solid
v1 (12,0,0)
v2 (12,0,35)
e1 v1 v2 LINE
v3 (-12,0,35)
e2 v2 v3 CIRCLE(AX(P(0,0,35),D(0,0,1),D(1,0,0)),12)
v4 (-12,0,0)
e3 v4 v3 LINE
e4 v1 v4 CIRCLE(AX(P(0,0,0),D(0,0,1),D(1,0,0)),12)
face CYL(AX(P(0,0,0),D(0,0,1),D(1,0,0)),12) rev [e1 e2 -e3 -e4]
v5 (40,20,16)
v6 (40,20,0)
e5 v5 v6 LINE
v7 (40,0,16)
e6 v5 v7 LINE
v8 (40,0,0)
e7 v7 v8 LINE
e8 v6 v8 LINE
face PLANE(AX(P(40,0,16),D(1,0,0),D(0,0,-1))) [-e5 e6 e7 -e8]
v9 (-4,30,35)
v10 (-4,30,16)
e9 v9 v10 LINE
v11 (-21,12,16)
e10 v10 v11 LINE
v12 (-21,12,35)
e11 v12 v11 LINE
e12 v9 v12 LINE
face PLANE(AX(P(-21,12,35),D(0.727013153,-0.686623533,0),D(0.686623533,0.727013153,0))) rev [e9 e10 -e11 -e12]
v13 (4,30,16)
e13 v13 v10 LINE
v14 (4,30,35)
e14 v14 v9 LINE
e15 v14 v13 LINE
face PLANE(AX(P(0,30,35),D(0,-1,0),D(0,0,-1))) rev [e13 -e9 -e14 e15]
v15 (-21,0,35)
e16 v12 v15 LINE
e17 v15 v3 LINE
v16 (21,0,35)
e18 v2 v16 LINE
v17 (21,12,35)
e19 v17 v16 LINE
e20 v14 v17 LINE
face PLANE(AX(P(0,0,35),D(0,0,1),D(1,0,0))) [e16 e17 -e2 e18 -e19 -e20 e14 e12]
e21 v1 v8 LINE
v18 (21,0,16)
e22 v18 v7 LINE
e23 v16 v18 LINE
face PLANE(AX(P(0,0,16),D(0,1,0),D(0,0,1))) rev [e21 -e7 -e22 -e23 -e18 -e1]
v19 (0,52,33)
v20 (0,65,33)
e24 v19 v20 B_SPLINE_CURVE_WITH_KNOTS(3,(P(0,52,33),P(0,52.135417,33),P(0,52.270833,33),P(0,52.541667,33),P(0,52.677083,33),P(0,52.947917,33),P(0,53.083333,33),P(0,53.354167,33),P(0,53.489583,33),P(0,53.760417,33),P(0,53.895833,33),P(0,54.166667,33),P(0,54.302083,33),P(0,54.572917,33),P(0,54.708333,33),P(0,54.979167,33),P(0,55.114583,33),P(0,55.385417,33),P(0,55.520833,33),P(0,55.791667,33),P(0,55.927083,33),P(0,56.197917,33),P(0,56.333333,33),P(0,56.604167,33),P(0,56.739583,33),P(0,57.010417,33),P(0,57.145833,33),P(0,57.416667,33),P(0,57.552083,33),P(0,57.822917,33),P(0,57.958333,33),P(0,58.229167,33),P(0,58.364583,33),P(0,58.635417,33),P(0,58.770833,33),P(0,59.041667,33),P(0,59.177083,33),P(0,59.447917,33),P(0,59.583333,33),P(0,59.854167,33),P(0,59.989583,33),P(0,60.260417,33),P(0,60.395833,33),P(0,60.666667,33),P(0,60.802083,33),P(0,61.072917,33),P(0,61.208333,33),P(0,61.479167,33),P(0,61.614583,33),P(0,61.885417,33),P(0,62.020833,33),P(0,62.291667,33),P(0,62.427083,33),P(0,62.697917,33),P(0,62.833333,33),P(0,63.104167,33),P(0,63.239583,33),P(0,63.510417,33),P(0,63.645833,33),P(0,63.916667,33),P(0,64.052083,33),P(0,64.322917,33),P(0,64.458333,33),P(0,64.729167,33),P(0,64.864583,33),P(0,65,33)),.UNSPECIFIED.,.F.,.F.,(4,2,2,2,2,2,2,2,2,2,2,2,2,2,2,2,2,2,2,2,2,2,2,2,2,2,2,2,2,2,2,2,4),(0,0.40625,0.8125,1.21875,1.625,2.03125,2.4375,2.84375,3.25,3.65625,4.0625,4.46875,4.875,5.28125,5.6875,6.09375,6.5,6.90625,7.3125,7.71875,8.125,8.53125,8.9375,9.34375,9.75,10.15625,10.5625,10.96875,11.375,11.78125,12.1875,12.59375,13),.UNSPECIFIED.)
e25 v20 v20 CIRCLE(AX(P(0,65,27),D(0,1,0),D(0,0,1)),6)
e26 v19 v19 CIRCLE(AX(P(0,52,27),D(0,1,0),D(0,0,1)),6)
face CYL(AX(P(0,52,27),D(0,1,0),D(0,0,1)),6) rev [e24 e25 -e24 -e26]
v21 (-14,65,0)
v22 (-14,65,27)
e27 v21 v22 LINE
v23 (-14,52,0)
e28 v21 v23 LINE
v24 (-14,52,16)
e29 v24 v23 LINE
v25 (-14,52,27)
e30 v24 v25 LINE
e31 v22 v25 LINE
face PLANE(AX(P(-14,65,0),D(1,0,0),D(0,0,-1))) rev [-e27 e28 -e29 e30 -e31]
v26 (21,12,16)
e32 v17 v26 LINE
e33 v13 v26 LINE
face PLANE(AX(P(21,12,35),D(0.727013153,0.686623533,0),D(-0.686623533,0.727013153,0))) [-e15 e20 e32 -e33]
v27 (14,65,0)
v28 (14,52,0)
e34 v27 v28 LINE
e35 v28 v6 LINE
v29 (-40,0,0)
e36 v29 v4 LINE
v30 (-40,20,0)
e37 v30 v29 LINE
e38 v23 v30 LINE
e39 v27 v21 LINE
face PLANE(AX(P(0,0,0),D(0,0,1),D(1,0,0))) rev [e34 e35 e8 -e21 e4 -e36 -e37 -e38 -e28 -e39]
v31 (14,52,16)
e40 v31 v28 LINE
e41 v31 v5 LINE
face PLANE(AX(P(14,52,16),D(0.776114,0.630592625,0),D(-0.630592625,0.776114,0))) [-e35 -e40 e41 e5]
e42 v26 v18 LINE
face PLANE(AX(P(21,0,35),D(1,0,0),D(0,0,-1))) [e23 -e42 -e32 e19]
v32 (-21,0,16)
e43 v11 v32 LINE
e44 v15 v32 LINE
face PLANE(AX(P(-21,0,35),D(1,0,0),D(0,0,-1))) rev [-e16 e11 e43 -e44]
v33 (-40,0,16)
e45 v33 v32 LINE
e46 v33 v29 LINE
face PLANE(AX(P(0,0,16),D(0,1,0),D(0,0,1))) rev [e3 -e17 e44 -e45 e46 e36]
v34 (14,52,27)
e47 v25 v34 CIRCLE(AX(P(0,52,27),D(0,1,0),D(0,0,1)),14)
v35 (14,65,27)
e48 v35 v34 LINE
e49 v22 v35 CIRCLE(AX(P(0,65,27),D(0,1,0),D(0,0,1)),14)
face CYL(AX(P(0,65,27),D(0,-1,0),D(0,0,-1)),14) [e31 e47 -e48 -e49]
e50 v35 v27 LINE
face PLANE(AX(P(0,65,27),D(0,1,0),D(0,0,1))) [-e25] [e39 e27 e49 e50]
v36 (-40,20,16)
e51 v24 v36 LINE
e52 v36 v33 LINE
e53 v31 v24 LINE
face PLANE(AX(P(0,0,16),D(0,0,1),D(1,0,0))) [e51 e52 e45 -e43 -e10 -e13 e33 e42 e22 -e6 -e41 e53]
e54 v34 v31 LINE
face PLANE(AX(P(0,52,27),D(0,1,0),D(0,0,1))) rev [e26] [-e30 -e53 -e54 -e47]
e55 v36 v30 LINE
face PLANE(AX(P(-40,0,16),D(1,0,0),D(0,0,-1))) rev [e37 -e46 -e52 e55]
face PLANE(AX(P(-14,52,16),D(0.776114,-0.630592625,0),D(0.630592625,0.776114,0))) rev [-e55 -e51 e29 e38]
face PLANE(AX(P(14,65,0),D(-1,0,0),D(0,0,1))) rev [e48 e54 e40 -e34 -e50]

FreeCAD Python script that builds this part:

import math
import FreeCAD as App
import Part
import Sketcher
from FreeCAD import Vector

doc = App.newDocument("Part")
body = doc.addObject("PartDesign::Body", "Body")

# Sketch on XY plane
sketch1 = body.newObject("Sketcher::SketchObject", "Sketch")
sketch1.AttachmentSupport = (doc.getObject("XY_Plane"), [""])
sketch1.MapMode = "FlatFace"
sketch1.addGeometry(Part.LineSegment(Vector(-40, 0, 0), Vector(0, 0, 0)), False)
sketch1.addGeometry(Part.LineSegment(Vector(0, 0, 0), Vector(0, 52, 0)), False)
sketch1.addGeometry(Part.LineSegment(Vector(0, 52, 0), Vector(-14, 52, 0)), False)
sketch1.addGeometry(Part.LineSegment(Vector(-14, 52, 0), Vector(-40, 20, 0)), False)
sketch1.addGeometry(Part.LineSegment(Vector(-40, 20, 0), Vector(-40, 0, 0)), False)
sketch1.addConstraint(Sketcher.Constraint("Coincident", 0, 2, 1, 1))
sketch1.addConstraint(Sketcher.Constraint("Coincident", 1, 2, 2, 1))
sketch1.addConstraint(Sketcher.Constraint("Coincident", 2, 2, 3, 1))
sketch1.addConstraint(Sketcher.Constraint("Coincident", 3, 2, 4, 1))
sketch1.addConstraint(Sketcher.Constraint("Coincident", 4, 2, 0, 1))
sketch1.addConstraint(Sketcher.Constraint("Horizontal", 0))
sketch1.addConstraint(Sketcher.Constraint("Vertical", 1))
sketch1.addConstraint(Sketcher.Constraint("Horizontal", 2))
sketch1.addConstraint(Sketcher.Constraint("Vertical", 4))
sketch1.addConstraint(Sketcher.Constraint("Coincident", 0, 2, -1, 1))
sketch1.addConstraint(Sketcher.Constraint("DistanceX", 0, 1, 0, 2, 40.0))
sketch1.addConstraint(Sketcher.Constraint("DistanceX", 2, 2, 2, 1, 14.0))
sketch1.addConstraint(Sketcher.Constraint("DistanceY", 1, 1, 1, 2, 52.0))
sketch1.addConstraint(Sketcher.Constraint("DistanceY", 4, 2, 4, 1, 20.0))
pad1 = body.newObject("PartDesign::Pad", "Pad")
pad1.Profile = sketch1
pad1.Length = 16
doc.recompute()

mirrored = body.newObject("PartDesign::Mirrored", "Mirrored")
mirrored.Originals = [pad1]
mirrored.MirrorPlane = (doc.getObject("YZ_Plane"), [""])
body.Tip = mirrored

# Sketch on XZ plane
sketch2 = body.newObject("Sketcher::SketchObject", "Sketch001")
sketch2.AttachmentSupport = (doc.getObject("XZ_Plane"), [""])
sketch2.MapMode = "FlatFace"
sketch2.AttachmentOffset = App.Placement(Vector(0, 0, -52), App.Rotation())
sketch2.addGeometry(Part.LineSegment(Vector(-14, 0, 0), Vector(-14, 27, 0)), False)
sketch2.addGeometry(Part.ArcOfCircle(Part.Circle(Vector(0, 27, 0), Vector(0, 0, 1), 14), math.radians(0), math.radians(180)), False)
sketch2.addGeometry(Part.LineSegment(Vector(14, 27, 0), Vector(14, 0, 0)), False)
sketch2.addGeometry(Part.LineSegment(Vector(14, 0, 0), Vector(-14, 0, 0)), False)
sketch2.addConstraint(Sketcher.Constraint("Tangent", 0, 2, 1, 2))
sketch2.addConstraint(Sketcher.Constraint("Tangent", 1, 1, 2, 1))
sketch2.addConstraint(Sketcher.Constraint("Coincident", 2, 2, 3, 1))
sketch2.addConstraint(Sketcher.Constraint("Coincident", 3, 2, 0, 1))
sketch2.addConstraint(Sketcher.Constraint("Vertical", 0))
sketch2.addConstraint(Sketcher.Constraint("Vertical", 2))
sketch2.addConstraint(Sketcher.Constraint("Horizontal", 3))
sketch2.addConstraint(Sketcher.Constraint("Symmetric", 2, 2, 3, 2, -1, 1))
sketch2.addConstraint(Sketcher.Constraint("Radius", 1, 14.0))
sketch2.addConstraint(Sketcher.Constraint("DistanceY", 0, 1, 0, 2, 27.0))
pad2 = body.newObject("PartDesign::Pad", "Pad001")
pad2.Profile = sketch2
pad2.Length = 13
pad2.Reversed = True

# Sketch on XZ plane
sketch3 = body.newObject("Sketcher::SketchObject", "Sketch002")
sketch3.AttachmentSupport = (doc.getObject("XZ_Plane"), [""])
sketch3.MapMode = "FlatFace"
sketch3.AttachmentOffset = App.Placement(Vector(0, 0, -65), App.Rotation())
sketch3.addGeometry(Part.Circle(Vector(0, 27, 0), Vector(0, 0, 1), 6), False)
sketch3.addConstraint(Sketcher.Constraint("PointOnObject", 0, 3, -2))
sketch3.addConstraint(Sketcher.Constraint("Diameter", 0, 12.0))
sketch3.addConstraint(Sketcher.Constraint("DistanceY", -1, 1, 0, 3, 27.0))
pocket1 = body.newObject("PartDesign::Pocket", "Pocket")
pocket1.Profile = sketch3
pocket1.Length = 13
pocket1.Reversed = True

# Sketch on XY plane
sketch4 = body.newObject("Sketcher::SketchObject", "Sketch003")
sketch4.AttachmentSupport = (doc.getObject("XY_Plane"), [""])
sketch4.MapMode = "FlatFace"
sketch4.AttachmentOffset = App.Placement(Vector(0, 0, 16), App.Rotation())
sketch4.addGeometry(Part.LineSegment(Vector(-21, 0, 0), Vector(0, 0, 0)), False)
sketch4.addGeometry(Part.LineSegment(Vector(0, 0, 0), Vector(0, 30, 0)), False)
sketch4.addGeometry(Part.LineSegment(Vector(0, 30, 0), Vector(-4, 30, 0)), False)
sketch4.addGeometry(Part.LineSegment(Vector(-4, 30, 0), Vector(-21, 12, 0)), False)
sketch4.addGeometry(Part.LineSegment(Vector(-21, 12, 0), Vector(-21, 0, 0)), False)
sketch4.addConstraint(Sketcher.Constraint("Coincident", 0, 2, 1, 1))
sketch4.addConstraint(Sketcher.Constraint("Coincident", 1, 2, 2, 1))
sketch4.addConstraint(Sketcher.Constraint("Coincident", 2, 2, 3, 1))
sketch4.addConstraint(Sketcher.Constraint("Coincident", 3, 2, 4, 1))
sketch4.addConstraint(Sketcher.Constraint("Coincident", 4, 2, 0, 1))
sketch4.addConstraint(Sketcher.Constraint("Horizontal", 0))
sketch4.addConstraint(Sketcher.Constraint("Vertical", 1))
sketch4.addConstraint(Sketcher.Constraint("Horizontal", 2))
sketch4.addConstraint(Sketcher.Constraint("Vertical", 4))
sketch4.addConstraint(Sketcher.Constraint("Coincident", 0, 2, -1, 1))
sketch4.addConstraint(Sketcher.Constraint("DistanceX", 0, 1, 0, 2, 21.0))
sketch4.addConstraint(Sketcher.Constraint("DistanceX", 2, 2, 2, 1, 4.0))
sketch4.addConstraint(Sketcher.Constraint("DistanceY", 1, 1, 1, 2, 30.0))
sketch4.addConstraint(Sketcher.Constraint("DistanceY", 4, 2, 4, 1, 12.0))
pad3 = body.newObject("PartDesign::Pad", "Pad002")
pad3.Profile = sketch4
pad3.Length = 19
doc.recompute()

mirrored2 = body.newObject("PartDesign::Mirrored", "Mirrored001")
mirrored2.Originals = [pad3]
mirrored2.MirrorPlane = (doc.getObject("YZ_Plane"), [""])
body.Tip = mirrored2

# Sketch on XY plane
sketch5 = body.newObject("Sketcher::SketchObject", "Sketch004")
sketch5.AttachmentSupport = (doc.getObject("XY_Plane"), [""])
sketch5.MapMode = "FlatFace"
sketch5.AttachmentOffset = App.Placement(Vector(0, 0, 35), App.Rotation())
sketch5.addGeometry(Part.LineSegment(Vector(-12, 0, 0), Vector(12, 0, 0)), False)
sketch5.addGeometry(Part.ArcOfCircle(Part.Circle(Vector(0, 0, 0), Vector(0, 0, 1), 12), math.radians(0), math.radians(180)), False)
sketch5.addConstraint(Sketcher.Constraint("Coincident", 0, 1, 1, 2))
sketch5.addConstraint(Sketcher.Constraint("Coincident", 1, 1, 0, 2))
sketch5.addConstraint(Sketcher.Constraint("Horizontal", 0))
sketch5.addConstraint(Sketcher.Constraint("Coincident", 1, 3, -1, 1))
sketch5.addConstraint(Sketcher.Constraint("PointOnObject", 0, 1, -1))
sketch5.addConstraint(Sketcher.Constraint("Radius", 1, 12.0))
pocket2 = body.newObject("PartDesign::Pocket", "Pocket001")
pocket2.Profile = sketch5
pocket2.Length = 35

doc.recompute()
